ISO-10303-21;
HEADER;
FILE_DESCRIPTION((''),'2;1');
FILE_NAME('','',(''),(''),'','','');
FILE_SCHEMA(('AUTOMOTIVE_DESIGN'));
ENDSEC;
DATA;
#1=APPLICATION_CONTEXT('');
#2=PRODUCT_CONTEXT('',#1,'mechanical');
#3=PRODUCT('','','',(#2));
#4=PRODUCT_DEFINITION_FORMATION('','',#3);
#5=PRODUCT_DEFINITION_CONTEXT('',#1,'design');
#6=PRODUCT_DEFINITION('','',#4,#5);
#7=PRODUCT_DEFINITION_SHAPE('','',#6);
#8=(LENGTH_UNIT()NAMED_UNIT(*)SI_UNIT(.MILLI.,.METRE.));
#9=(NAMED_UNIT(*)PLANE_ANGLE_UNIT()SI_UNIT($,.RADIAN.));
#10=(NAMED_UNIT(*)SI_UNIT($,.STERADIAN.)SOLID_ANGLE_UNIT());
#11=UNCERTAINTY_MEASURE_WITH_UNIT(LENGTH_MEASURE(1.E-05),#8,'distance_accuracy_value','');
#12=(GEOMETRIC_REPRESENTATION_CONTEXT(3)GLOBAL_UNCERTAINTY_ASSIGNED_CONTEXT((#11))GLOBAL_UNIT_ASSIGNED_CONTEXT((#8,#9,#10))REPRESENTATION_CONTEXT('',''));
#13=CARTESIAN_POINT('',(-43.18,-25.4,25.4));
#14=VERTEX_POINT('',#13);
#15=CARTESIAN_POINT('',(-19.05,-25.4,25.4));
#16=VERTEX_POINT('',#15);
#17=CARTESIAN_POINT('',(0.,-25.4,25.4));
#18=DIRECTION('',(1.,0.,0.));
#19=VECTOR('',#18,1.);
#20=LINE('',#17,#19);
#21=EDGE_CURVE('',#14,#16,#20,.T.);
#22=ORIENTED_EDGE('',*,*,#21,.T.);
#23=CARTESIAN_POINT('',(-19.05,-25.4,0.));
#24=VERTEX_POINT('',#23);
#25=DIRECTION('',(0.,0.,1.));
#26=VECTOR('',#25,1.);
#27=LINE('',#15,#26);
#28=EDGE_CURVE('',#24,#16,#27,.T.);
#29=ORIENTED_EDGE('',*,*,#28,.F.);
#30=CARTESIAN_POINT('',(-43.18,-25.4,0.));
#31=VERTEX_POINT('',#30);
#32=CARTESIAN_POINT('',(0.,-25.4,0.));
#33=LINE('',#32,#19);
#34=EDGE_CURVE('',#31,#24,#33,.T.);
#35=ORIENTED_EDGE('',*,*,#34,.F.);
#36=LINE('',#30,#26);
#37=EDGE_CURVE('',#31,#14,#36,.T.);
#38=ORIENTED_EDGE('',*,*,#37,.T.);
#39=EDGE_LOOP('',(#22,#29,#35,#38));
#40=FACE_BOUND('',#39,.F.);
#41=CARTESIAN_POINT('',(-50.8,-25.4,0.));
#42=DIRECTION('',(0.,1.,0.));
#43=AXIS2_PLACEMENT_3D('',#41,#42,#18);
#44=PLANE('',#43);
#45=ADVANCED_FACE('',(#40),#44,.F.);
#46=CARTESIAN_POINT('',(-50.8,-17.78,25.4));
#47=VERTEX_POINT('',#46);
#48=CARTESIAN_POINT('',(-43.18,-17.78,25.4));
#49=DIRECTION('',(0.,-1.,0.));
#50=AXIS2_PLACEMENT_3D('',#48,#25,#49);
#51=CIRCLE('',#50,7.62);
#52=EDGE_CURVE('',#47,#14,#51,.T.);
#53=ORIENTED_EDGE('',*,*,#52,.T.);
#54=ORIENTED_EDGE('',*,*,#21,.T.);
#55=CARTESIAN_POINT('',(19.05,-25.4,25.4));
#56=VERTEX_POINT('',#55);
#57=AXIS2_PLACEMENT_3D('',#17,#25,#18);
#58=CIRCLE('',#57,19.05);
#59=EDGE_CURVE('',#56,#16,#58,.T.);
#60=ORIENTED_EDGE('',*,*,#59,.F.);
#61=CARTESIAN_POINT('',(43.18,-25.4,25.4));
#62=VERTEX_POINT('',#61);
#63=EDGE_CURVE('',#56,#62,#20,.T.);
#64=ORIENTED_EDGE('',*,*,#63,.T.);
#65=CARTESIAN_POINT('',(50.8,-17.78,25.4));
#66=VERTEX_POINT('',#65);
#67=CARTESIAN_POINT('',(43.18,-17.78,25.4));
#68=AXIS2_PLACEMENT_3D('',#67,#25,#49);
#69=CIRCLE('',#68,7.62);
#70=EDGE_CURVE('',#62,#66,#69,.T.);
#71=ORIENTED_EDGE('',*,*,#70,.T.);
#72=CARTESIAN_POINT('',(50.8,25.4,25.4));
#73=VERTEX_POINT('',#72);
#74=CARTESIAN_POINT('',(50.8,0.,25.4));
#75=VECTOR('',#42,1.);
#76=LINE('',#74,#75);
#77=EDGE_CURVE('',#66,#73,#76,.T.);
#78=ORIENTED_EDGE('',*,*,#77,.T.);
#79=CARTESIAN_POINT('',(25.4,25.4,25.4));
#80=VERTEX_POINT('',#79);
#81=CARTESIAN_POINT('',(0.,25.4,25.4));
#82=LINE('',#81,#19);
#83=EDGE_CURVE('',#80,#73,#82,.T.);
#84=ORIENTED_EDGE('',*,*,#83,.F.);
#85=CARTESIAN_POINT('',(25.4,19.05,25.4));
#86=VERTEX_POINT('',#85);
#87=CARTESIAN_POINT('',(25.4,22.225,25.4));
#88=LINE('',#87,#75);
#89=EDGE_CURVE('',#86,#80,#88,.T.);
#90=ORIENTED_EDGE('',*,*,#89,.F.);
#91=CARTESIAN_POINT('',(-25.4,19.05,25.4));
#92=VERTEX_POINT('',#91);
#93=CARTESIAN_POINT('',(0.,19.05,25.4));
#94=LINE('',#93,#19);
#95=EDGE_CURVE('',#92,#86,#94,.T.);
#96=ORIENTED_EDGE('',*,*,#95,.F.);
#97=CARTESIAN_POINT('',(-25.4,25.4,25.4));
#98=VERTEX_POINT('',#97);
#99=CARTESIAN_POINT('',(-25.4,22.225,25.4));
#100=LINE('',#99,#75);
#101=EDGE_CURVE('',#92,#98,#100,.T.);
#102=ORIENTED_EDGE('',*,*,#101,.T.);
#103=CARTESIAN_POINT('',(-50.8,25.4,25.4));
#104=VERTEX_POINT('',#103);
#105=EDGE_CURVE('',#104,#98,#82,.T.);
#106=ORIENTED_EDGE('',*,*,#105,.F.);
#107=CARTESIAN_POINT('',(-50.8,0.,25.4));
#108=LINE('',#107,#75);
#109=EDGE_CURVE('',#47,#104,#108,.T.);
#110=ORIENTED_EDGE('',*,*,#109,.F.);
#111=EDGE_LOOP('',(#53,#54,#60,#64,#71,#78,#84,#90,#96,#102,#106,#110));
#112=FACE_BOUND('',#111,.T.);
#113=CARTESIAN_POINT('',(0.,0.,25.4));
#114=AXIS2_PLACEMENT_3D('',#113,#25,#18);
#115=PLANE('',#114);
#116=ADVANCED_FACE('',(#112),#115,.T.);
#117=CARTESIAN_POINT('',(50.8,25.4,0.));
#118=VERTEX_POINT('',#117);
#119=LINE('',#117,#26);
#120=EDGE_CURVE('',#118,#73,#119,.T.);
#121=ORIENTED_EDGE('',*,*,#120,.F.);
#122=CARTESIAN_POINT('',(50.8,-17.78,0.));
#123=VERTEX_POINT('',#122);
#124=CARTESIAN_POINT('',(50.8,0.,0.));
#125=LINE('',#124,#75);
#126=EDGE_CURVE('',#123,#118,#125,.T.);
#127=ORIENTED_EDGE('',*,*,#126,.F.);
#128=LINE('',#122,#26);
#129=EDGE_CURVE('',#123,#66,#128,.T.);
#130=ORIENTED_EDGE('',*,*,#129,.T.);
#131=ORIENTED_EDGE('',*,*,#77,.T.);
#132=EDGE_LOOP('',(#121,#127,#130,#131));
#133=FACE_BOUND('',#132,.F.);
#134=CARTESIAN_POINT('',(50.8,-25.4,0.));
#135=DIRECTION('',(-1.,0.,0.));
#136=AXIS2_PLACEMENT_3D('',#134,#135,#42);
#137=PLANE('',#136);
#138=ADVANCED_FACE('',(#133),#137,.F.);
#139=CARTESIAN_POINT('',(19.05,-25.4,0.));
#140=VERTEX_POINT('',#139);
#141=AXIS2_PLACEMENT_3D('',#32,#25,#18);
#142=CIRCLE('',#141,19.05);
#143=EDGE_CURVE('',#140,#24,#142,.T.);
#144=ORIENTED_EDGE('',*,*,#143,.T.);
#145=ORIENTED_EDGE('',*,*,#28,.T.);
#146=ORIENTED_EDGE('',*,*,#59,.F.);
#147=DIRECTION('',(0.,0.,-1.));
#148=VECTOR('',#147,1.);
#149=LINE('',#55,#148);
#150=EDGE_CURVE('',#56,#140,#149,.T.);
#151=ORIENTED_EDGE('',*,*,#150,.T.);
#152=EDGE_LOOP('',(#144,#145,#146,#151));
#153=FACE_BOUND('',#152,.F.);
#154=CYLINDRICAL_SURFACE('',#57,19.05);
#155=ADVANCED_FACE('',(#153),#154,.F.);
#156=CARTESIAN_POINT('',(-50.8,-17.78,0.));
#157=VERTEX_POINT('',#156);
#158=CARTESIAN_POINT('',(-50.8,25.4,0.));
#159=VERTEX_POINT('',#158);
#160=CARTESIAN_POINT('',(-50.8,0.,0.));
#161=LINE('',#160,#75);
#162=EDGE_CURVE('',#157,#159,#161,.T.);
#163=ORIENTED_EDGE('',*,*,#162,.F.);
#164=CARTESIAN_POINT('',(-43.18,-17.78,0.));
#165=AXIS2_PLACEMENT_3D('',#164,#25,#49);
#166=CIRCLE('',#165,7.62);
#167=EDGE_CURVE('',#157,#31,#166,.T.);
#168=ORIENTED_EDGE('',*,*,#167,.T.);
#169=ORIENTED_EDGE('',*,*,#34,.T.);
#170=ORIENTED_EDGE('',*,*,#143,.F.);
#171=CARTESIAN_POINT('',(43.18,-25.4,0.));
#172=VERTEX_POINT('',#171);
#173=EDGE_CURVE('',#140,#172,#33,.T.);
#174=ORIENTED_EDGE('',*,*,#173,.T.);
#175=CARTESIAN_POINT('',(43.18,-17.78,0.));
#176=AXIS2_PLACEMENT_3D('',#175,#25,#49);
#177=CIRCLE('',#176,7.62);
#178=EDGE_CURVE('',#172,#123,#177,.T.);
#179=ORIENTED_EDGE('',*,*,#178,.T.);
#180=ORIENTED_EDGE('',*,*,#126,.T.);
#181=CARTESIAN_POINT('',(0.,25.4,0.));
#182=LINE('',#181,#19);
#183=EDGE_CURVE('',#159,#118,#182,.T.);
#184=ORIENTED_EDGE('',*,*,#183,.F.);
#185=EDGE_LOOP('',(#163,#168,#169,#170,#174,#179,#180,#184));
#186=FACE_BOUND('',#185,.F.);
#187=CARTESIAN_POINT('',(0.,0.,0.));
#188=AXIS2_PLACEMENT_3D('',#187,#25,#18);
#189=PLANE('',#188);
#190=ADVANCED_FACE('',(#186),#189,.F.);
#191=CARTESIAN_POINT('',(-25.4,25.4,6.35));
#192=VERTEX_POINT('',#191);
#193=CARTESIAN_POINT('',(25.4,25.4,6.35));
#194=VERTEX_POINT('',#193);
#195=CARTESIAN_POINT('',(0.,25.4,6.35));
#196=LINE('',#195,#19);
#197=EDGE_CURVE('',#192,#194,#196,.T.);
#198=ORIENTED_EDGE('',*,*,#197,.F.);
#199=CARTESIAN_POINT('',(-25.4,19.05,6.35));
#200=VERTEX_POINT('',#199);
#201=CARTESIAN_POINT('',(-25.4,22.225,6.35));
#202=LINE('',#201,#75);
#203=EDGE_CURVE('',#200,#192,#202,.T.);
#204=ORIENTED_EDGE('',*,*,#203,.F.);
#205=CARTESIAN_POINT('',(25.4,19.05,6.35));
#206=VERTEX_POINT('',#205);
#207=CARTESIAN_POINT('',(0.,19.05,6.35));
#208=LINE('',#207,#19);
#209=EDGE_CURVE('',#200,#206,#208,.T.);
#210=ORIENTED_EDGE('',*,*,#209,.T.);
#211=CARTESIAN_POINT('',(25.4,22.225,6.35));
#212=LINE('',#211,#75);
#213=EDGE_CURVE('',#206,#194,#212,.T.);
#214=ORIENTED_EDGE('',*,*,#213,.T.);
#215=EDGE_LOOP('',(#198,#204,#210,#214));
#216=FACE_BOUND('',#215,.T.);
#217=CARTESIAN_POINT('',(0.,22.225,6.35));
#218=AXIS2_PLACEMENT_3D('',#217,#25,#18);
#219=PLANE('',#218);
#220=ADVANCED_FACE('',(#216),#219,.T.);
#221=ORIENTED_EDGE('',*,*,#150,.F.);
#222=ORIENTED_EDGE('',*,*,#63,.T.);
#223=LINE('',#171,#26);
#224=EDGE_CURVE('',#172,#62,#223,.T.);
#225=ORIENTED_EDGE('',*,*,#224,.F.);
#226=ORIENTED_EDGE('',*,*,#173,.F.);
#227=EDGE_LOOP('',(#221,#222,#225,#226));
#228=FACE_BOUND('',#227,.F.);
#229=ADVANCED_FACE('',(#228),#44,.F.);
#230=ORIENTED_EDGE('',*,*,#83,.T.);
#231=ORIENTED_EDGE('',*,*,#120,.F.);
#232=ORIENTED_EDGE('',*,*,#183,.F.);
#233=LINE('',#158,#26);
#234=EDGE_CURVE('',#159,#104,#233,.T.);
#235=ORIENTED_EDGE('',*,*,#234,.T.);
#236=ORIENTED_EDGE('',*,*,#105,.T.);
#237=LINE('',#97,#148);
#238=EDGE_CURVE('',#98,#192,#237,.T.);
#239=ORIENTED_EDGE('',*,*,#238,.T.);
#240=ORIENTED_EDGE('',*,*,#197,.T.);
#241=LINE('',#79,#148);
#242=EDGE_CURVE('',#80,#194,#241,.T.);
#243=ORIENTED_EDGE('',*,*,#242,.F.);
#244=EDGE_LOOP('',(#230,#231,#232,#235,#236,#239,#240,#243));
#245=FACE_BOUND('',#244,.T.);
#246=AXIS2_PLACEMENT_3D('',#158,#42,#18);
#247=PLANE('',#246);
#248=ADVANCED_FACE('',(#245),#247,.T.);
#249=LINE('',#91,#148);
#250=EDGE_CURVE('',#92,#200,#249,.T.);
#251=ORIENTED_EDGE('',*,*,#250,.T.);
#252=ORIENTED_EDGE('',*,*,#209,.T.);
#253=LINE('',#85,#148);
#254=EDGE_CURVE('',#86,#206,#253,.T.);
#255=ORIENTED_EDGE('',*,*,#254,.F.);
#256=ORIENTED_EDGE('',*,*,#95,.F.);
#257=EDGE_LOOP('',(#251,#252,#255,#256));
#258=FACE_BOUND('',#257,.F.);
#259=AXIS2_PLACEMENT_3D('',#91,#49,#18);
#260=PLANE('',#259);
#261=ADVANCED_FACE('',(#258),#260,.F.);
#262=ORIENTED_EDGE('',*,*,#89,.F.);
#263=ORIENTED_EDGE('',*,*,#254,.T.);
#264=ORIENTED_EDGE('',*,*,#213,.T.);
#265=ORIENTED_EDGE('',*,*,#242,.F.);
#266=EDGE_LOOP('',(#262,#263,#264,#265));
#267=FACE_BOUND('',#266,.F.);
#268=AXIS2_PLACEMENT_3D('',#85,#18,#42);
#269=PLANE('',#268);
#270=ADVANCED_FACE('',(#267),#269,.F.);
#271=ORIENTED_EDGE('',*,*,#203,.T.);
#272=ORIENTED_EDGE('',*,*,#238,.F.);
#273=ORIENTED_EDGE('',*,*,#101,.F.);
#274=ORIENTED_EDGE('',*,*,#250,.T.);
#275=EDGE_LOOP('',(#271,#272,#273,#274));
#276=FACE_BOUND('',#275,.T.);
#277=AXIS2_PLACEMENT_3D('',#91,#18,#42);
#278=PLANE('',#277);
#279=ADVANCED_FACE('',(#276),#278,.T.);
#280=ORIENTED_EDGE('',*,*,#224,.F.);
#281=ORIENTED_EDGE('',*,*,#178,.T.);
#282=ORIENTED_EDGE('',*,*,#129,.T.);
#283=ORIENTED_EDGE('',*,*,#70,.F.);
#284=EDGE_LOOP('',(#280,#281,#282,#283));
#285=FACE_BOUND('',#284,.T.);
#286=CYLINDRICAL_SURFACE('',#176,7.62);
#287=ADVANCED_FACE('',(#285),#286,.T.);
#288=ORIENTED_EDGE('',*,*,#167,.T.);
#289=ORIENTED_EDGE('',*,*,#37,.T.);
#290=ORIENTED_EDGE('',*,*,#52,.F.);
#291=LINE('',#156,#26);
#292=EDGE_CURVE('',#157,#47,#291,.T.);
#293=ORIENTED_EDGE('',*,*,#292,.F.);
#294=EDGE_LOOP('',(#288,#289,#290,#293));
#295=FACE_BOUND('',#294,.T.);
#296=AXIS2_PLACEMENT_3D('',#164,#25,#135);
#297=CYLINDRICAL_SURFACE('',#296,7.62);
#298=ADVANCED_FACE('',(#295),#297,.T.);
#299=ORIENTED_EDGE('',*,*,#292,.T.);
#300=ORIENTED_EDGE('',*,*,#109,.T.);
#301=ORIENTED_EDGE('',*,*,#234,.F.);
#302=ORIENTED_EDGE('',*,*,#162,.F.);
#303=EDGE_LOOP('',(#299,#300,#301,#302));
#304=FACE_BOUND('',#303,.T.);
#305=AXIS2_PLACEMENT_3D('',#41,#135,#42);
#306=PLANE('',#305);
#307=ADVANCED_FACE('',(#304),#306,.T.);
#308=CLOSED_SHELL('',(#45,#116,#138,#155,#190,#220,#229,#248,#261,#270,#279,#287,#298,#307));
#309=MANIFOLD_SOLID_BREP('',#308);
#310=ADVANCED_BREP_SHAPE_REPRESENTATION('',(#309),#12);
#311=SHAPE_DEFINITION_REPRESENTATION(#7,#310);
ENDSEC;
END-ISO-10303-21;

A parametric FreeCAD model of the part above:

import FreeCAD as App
import Part
import Sketcher

V = App.Vector
Q = App.Units.Quantity


def edges_at(feature, points):
    """Names of the edges that pass closest to the given points."""
    edges = feature.Shape.Edges
    near = lambda p: min(range(len(edges)), key=lambda i: edges[i].distToShape(Part.Vertex(*p))[0])
    return sorted({f"Edge{near(p) + 1}" for p in points})

doc = App.newDocument("Part")
params = doc.addObject("Spreadsheet::Sheet", "Params")
for row, (alias, value) in enumerate([
    ("sketch1_width", "4 in"),
    ("sketch1_height", "2 in"),
    ("pad1_length", "1 in"),
    ("fillet_radius", "0.3 in"),
    ("sketch2_width", "2 in"),
    ("sketch2_height", "0.25 in"),
    ("pocket1_length", "0.75 in"),
    ("sketch3_diameter", "1.5 in"),
    ("pocket2_length", "1 in"),
], start=1):
    params.set(f"A{row}", alias)
    params.set(f"B{row}", "=" + value)
    params.setAlias(f"B{row}", alias)

body = doc.addObject("PartDesign::Body", "Body")

sketch1 = body.newObject("Sketcher::SketchObject", "Sketch")
sketch1.AttachmentSupport = (doc.getObject("XY_Plane"), [""])
sketch1.MapMode = "FlatFace"
sketch1.addGeometry([
    Part.LineSegment(V(-51, 25, 0), V(-51, -25, 0)),
    Part.LineSegment(V(-51, -25, 0), V(51, -25, 0)),
    Part.LineSegment(V(51, -25, 0), V(51, 25, 0)),
    Part.LineSegment(V(51, 25, 0), V(-51, 25, 0)),
], False)
sketch1.addConstraint([
    Sketcher.Constraint("Coincident", 0, 2, 1, 1),
    Sketcher.Constraint("Coincident", 1, 2, 2, 1),
    Sketcher.Constraint("Coincident", 2, 2, 3, 1),
    Sketcher.Constraint("Coincident", 3, 2, 0, 1),
    Sketcher.Constraint("Vertical", 0),
    Sketcher.Constraint("Horizontal", 1),
    Sketcher.Constraint("Vertical", 2),
    Sketcher.Constraint("Horizontal", 3),
    Sketcher.Constraint("Symmetric", 0, 2, 2, 2, -1, 1),
    Sketcher.Constraint("DistanceX", 1, 1, 1, 2, Q("4 in")),
    Sketcher.Constraint("DistanceY", 0, 2, 0, 1, Q("2 in")),
])
sketch1.setExpression("Constraints[9]", "Params.sketch1_width")
sketch1.setExpression("Constraints[10]", "Params.sketch1_height")
pad1 = body.newObject("PartDesign::Pad", "Pad")
pad1.Profile = sketch1
pad1.setExpression("Length", "Params.pad1_length")
doc.recompute()

fillet = body.newObject("PartDesign::Fillet", "Fillet")
fillet.Base = (pad1, edges_at(pad1, [(-50.8, -25.4, 12.7), (50.8, -25.4, 12.7)]))
fillet.setExpression("Radius", "Params.fillet_radius")

sketch2 = body.newObject("Sketcher::SketchObject", "Sketch001")
sketch2.AttachmentSupport = (doc.getObject("XY_Plane"), [""])
sketch2.MapMode = "FlatFace"
sketch2.AttachmentOffset = App.Placement(V(0, 0, 1 * 25.4), App.Rotation())
sketch2.addGeometry([
    Part.LineSegment(V(-25, 25, 0), V(-25, 19, 0)),
    Part.LineSegment(V(-25, 19, 0), V(25, 19, 0)),
    Part.LineSegment(V(25, 19, 0), V(25, 25, 0)),
    Part.LineSegment(V(25, 25, 0), V(-25, 25, 0)),
], False)
sketch2.addConstraint([
    Sketcher.Constraint("Coincident", 0, 2, 1, 1),
    Sketcher.Constraint("Coincident", 1, 2, 2, 1),
    Sketcher.Constraint("Coincident", 2, 2, 3, 1),
    Sketcher.Constraint("Coincident", 3, 2, 0, 1),
    Sketcher.Constraint("Vertical", 0),
    Sketcher.Constraint("Horizontal", 1),
    Sketcher.Constraint("Vertical", 2),
    Sketcher.Constraint("Horizontal", 3),
    Sketcher.Constraint("DistanceX", 1, 1, 1, 2, Q("2 in")),
    Sketcher.Constraint("DistanceX", 0, 2, -1, 1, Q("1 in")),
    Sketcher.Constraint("DistanceY", -1, 1, 2, 2, Q("1 in")),
    Sketcher.Constraint("DistanceY", 0, 2, 0, 1, Q("0.25 in")),
])
sketch2.setExpression("Constraints[8]", "Params.sketch2_width")
sketch2.setExpression("Constraints[11]", "Params.sketch2_height")
pocket1 = body.newObject("PartDesign::Pocket", "Pocket")
pocket1.Profile = sketch2
pocket1.setExpression("Length", "Params.pocket1_length")

sketch3 = body.newObject("Sketcher::SketchObject", "Sketch002")
sketch3.AttachmentSupport = (doc.getObject("XY_Plane"), [""])
sketch3.MapMode = "FlatFace"
sketch3.AttachmentOffset = App.Placement(V(0, 0, 1 * 25.4), App.Rotation())
sketch3.addGeometry(Part.Circle(V(0, -25, 0), V(0, 0, 1), 19), False)
sketch3.addConstraint([
    Sketcher.Constraint("PointOnObject", 0, 3, -2),
    Sketcher.Constraint("Diameter", 0, Q("1.5 in")),
    Sketcher.Constraint("DistanceY", 0, 3, -1, 1, Q("1 in")),
])
sketch3.setExpression("Constraints[1]", "Params.sketch3_diameter")
pocket2 = body.newObject("PartDesign::Pocket", "Pocket001")
pocket2.Profile = sketch3
pocket2.setExpression("Length", "Params.pocket2_length")

doc.recompute()
